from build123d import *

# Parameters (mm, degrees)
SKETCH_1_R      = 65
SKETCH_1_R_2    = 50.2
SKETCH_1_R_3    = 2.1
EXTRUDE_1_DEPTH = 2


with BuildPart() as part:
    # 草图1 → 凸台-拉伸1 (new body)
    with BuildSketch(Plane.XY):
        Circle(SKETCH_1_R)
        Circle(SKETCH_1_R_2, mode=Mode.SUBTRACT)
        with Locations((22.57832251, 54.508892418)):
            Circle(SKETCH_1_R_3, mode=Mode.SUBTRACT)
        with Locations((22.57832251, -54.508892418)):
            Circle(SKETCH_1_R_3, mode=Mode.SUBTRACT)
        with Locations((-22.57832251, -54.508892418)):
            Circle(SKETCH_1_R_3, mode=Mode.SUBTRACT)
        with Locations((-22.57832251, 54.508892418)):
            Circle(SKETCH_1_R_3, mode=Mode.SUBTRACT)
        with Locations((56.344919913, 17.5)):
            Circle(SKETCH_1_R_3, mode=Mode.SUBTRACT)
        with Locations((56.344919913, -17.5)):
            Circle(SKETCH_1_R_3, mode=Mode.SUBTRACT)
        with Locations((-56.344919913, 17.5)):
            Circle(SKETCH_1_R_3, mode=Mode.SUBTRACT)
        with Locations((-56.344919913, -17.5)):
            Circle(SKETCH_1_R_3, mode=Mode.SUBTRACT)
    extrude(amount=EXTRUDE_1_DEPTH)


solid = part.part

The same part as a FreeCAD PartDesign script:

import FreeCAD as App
import Part
import Sketcher
Q = App.Units.Quantity

doc = App.newDocument("Part")
body = doc.addObject("PartDesign::Body", "Body")

sketch1 = body.newObject("Sketcher::SketchObject", "Sketch")
sketch1.AttachmentSupport = (doc.getObject("XY_Plane"), [""])
sketch1.MapMode = "FlatFace"
sketch1.addGeometry([
    Part.Circle(App.Vector(0, 0, 0), App.Vector(0, 0, 1), 65),
    Part.Circle(App.Vector(-22.6, -54.5, 0), App.Vector(0, 0, 1), 2.1),
    Part.Circle(App.Vector(-56.3, -17.5, 0), App.Vector(0, 0, 1), 2.1),
    Part.Circle(App.Vector(0, 0, 0), App.Vector(0, 0, 1), 50.2),
    Part.Circle(App.Vector(22.6, -54.5, 0), App.Vector(0, 0, 1), 2.1),
    Part.Circle(App.Vector(56.3, -17.5, 0), App.Vector(0, 0, 1), 2.1),
    Part.Circle(App.Vector(-56.3, 17.5, 0), App.Vector(0, 0, 1), 2.1),
    Part.Circle(App.Vector(-22.6, 54.5, 0), App.Vector(0, 0, 1), 2.1),
    Part.Circle(App.Vector(56.3, 17.5, 0), App.Vector(0, 0, 1), 2.1),
    Part.Circle(App.Vector(22.6, 54.5, 0), App.Vector(0, 0, 1), 2.1),
], False)
sketch1.addConstraint([
    Sketcher.Constraint("Coincident", 0, 3, -1, 1),
    Sketcher.Constraint("Coincident", 3, 3, -1, 1),
    Sketcher.Constraint("Equal", 1, 2),
    Sketcher.Constraint("Equal", 2, 4),
    Sketcher.Constraint("Equal", 4, 5),
    Sketcher.Constraint("Equal", 5, 6),
    Sketcher.Constraint("Equal", 6, 7),
    Sketcher.Constraint("Equal", 7, 8),
    Sketcher.Constraint("Equal", 8, 9),
    Sketcher.Constraint("Symmetric", 5, 3, 6, 3, -1, 1),
    Sketcher.Constraint("Symmetric", 4, 3, 7, 3, -1, 1),
    Sketcher.Constraint("Symmetric", 2, 3, 8, 3, -1, 1),
    Sketcher.Constraint("Symmetric", 1, 3, 9, 3, -1, 1),
    Sketcher.Constraint("Symmetric", 1, 3, 4, 3, -2),
    Sketcher.Constraint("Symmetric", 2, 3, 5, 3, -2),
    Sketcher.Constraint("Diameter", 0, Q("130 mm")),
    Sketcher.Constraint("Diameter", 1, Q("4.2 mm")),
    Sketcher.Constraint("Diameter", 3, Q("100.4 mm")),
    Sketcher.Constraint("DistanceY", 2, 3, 6, 3, Q("35 mm")),
    Sketcher.Constraint("DistanceX", 2, 3, -1, 1, Q("56.34492 mm")),
    Sketcher.Constraint("DistanceX", 1, 3, -1, 1, Q("22.578323 mm")),
    Sketcher.Constraint("DistanceY", 1, 3, -1, 1, Q("54.508892 mm")),
])
pad1 = body.newObject("PartDesign::Pad", "Pad")
pad1.Profile = sketch1
pad1.Length = 2

doc.recompute()
